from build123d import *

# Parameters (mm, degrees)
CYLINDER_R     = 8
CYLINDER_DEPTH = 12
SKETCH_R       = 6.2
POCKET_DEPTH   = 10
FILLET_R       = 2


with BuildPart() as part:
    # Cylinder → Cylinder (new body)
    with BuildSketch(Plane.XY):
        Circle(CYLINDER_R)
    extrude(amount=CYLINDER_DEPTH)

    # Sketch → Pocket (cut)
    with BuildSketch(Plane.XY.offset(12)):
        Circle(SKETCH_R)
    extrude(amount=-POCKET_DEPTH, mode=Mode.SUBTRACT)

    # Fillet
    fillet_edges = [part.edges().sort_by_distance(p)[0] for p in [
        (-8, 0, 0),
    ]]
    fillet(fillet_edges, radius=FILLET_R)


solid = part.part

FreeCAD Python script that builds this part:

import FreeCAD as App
import Part
import Sketcher
Q = App.Units.Quantity


def edges_at(feature, points):
    """Names of the edges that pass closest to the given points."""
    edges = feature.Shape.Edges
    near = lambda p: min(range(len(edges)), key=lambda i: edges[i].distToShape(Part.Vertex(*p))[0])
    return sorted({f"Edge{near(p) + 1}" for p in points})

doc = App.newDocument("Part")
params = doc.addObject("Spreadsheet::Sheet", "Params")
for row, (alias, value) in enumerate([
    ("sketch1_diameter", "16 mm"),
    ("pad1_length", "12 mm"),
    ("sketch2_diameter", "12.4 mm"),
    ("pocket1_length", "10 mm"),
    ("fillet_radius", "2 mm"),
], start=1):
    params.set(f"A{row}", alias)
    params.set(f"B{row}", "=" + value)
    params.setAlias(f"B{row}", alias)

body = doc.addObject("PartDesign::Body", "Body")

sketch1 = body.newObject("Sketcher::SketchObject", "Sketch")
sketch1.AttachmentSupport = (doc.getObject("XY_Plane"), [""])
sketch1.MapMode = "FlatFace"
sketch1.addGeometry(Part.Circle(App.Vector(0, 0, 0), App.Vector(0, 0, 1), 8), False)
sketch1.addConstraint(Sketcher.Constraint("Coincident", 0, 3, -1, 1))
sketch1.addConstraint(Sketcher.Constraint("Diameter", 0, Q("16 mm")))
sketch1.setExpression("Constraints[1]", "Params.sketch1_diameter")
pad1 = body.newObject("PartDesign::Pad", "Pad")
pad1.Profile = sketch1
pad1.setExpression("Length", "Params.pad1_length")

sketch2 = body.newObject("Sketcher::SketchObject", "Sketch001")
sketch2.AttachmentSupport = (doc.getObject("XY_Plane"), [""])
sketch2.MapMode = "FlatFace"
sketch2.AttachmentOffset = App.Placement(App.Vector(0, 0, 12), App.Rotation())
sketch2.addGeometry(Part.Circle(App.Vector(0, 0, 0), App.Vector(0, 0, 1), 6.2), False)
sketch2.addConstraint(Sketcher.Constraint("Coincident", 0, 3, -1, 1))
sketch2.addConstraint(Sketcher.Constraint("Diameter", 0, Q("12.4 mm")))
sketch2.setExpression("Constraints[1]", "Params.sketch2_diameter")
pocket1 = body.newObject("PartDesign::Pocket", "Pocket")
pocket1.Profile = sketch2
pocket1.setExpression("Length", "Params.pocket1_length")
doc.recompute()

fillet = body.newObject("PartDesign::Fillet", "Fillet")
fillet.Base = (pocket1, edges_at(pocket1, [(-8, 0, 0)]))
fillet.setExpression("Radius", "Params.fillet_radius")

doc.recompute()
